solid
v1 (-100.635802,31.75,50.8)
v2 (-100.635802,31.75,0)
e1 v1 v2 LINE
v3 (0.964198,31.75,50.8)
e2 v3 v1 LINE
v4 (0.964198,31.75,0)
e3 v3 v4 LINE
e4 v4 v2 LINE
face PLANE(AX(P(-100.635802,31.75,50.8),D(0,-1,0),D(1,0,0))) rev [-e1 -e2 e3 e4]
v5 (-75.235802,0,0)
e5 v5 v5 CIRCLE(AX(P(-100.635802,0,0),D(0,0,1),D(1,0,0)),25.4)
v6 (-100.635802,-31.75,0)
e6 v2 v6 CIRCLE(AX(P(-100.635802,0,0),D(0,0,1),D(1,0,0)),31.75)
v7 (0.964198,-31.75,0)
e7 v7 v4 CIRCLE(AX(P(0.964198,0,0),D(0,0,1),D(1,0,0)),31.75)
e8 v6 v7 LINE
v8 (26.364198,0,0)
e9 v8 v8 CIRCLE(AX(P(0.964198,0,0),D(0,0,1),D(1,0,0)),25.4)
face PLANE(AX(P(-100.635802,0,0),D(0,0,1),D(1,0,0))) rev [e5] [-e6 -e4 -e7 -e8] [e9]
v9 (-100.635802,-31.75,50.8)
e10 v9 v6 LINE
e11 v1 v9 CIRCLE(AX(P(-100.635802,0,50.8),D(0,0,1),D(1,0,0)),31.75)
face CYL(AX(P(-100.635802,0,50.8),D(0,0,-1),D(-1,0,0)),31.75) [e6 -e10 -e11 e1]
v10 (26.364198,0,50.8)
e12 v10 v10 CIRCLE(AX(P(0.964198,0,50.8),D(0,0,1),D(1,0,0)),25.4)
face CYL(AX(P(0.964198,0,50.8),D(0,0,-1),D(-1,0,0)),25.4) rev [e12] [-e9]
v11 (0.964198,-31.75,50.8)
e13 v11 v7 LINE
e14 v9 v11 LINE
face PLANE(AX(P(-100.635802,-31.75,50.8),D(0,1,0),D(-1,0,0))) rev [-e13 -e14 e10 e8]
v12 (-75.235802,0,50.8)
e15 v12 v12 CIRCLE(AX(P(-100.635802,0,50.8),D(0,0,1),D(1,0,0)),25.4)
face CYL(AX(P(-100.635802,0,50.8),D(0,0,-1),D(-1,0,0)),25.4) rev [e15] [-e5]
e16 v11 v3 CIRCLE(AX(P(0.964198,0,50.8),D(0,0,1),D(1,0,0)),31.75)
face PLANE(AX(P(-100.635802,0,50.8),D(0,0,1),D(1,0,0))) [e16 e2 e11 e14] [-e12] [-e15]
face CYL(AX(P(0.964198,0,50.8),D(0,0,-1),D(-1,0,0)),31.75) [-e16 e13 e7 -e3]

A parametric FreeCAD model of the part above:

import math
import FreeCAD as App
import Part
import Sketcher
Q = App.Units.Quantity

doc = App.newDocument("Part")
body = doc.addObject("PartDesign::Body", "Body")

sketch1 = body.newObject("Sketcher::SketchObject", "Sketch")
sketch1.AttachmentSupport = (doc.getObject("XY_Plane"), [""])
sketch1.MapMode = "FlatFace"
sketch1.addGeometry([
    Part.LineSegment(App.Vector(0.964198, 31.75, 0), App.Vector(-100.635802, 31.75, 0)),
    Part.ArcOfCircle(Part.Circle(App.Vector(-100.635802, 0, 0), App.Vector(0, 0, 1), 31.75), math.radians(90), math.radians(270)),
    Part.LineSegment(App.Vector(-100.635802, -31.75, 0), App.Vector(0.964198, -31.75, 0)),
    Part.ArcOfCircle(Part.Circle(App.Vector(0.964198, 0, 0), App.Vector(0, 0, 1), 31.75), math.radians(-90), math.radians(90)),
    Part.Circle(App.Vector(0.964198, 0, 0), App.Vector(0, 0, 1), 25.4),
    Part.Circle(App.Vector(-100.635802, 0, 0), App.Vector(0, 0, 1), 25.4),
], False)
sketch1.addConstraint([
    Sketcher.Constraint("Tangent", 0, 2, 1, 1),
    Sketcher.Constraint("Tangent", 1, 2, 2, 1),
    Sketcher.Constraint("Tangent", 2, 2, 3, 1),
    Sketcher.Constraint("Tangent", 3, 2, 0, 1),
    Sketcher.Constraint("Horizontal", 0),
    Sketcher.Constraint("Horizontal", 2),
    Sketcher.Constraint("Coincident", 4, 3, 3, 3),
    Sketcher.Constraint("Coincident", 5, 3, 1, 3),
    Sketcher.Constraint("Equal", 4, 5),
    Sketcher.Constraint("PointOnObject", 1, 3, -1),
    Sketcher.Constraint("Diameter", 4, Q("2 in")),
    Sketcher.Constraint("DistanceX", 0, 2, 0, 1, Q("4 in")),
    Sketcher.Constraint("Radius", 1, Q("1.25 in")),
    Sketcher.Constraint("DistanceX", 1, 3, -1, 1, 100.635802),
])
pad1 = body.newObject("PartDesign::Pad", "Pad")
pad1.Profile = sketch1
pad1.Length = Q("2 in")

doc.recompute()
